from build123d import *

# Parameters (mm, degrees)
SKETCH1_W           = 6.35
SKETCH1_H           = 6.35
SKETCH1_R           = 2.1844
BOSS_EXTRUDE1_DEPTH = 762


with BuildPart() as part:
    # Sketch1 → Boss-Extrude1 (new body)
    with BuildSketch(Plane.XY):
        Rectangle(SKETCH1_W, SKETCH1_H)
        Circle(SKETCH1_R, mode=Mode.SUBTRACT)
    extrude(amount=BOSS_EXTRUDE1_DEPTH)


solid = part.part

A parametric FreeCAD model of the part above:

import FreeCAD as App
import Part
import Sketcher

V = App.Vector
Q = App.Units.Quantity

doc = App.newDocument("Part")
body = doc.addObject("PartDesign::Body", "Body")

sketch1 = doc.addObject("Sketcher::SketchObject", "Sketch")
body.addObject(sketch1)
sketch1.AttachmentSupport = (doc.XY_Plane, [""])
sketch1.MapMode = "FlatFace"
sketch1.addGeometry([
    Part.LineSegment(V(-3.2, 3.2, 0), V(-3.2, -3.2, 0)),
    Part.LineSegment(V(-3.2, -3.2, 0), V(3.2, -3.2, 0)),
    Part.LineSegment(V(3.2, -3.2, 0), V(3.2, 3.2, 0)),
    Part.LineSegment(V(3.2, 3.2, 0), V(-3.2, 3.2, 0)),
    Part.Circle(V(0, 0, 0), V(0, 0, 1), 2.2),
], False)
sketch1.addConstraint([
    Sketcher.Constraint("Coincident", 0, 2, 1, 1),
    Sketcher.Constraint("Coincident", 1, 2, 2, 1),
    Sketcher.Constraint("Coincident", 2, 2, 3, 1),
    Sketcher.Constraint("Coincident", 3, 2, 0, 1),
    Sketcher.Constraint("Vertical", 0),
    Sketcher.Constraint("Horizontal", 1),
    Sketcher.Constraint("Vertical", 2),
    Sketcher.Constraint("Horizontal", 3),
    Sketcher.Constraint("Coincident", 4, 3, -1, 1),
    Sketcher.Constraint("Symmetric", 0, 2, 2, 2, -1, 1),
    Sketcher.Constraint("Equal", 3, 0),
    Sketcher.Constraint("Diameter", 4, Q("0.172 in")),
    Sketcher.Constraint("DistanceX", 1, 1, 1, 2, Q("0.25 in")),
])
pad1 = doc.addObject("PartDesign::Pad", "Pad")
body.addObject(pad1)
pad1.Profile = sketch1
pad1.Length = Q("30 in")

doc.recompute()
